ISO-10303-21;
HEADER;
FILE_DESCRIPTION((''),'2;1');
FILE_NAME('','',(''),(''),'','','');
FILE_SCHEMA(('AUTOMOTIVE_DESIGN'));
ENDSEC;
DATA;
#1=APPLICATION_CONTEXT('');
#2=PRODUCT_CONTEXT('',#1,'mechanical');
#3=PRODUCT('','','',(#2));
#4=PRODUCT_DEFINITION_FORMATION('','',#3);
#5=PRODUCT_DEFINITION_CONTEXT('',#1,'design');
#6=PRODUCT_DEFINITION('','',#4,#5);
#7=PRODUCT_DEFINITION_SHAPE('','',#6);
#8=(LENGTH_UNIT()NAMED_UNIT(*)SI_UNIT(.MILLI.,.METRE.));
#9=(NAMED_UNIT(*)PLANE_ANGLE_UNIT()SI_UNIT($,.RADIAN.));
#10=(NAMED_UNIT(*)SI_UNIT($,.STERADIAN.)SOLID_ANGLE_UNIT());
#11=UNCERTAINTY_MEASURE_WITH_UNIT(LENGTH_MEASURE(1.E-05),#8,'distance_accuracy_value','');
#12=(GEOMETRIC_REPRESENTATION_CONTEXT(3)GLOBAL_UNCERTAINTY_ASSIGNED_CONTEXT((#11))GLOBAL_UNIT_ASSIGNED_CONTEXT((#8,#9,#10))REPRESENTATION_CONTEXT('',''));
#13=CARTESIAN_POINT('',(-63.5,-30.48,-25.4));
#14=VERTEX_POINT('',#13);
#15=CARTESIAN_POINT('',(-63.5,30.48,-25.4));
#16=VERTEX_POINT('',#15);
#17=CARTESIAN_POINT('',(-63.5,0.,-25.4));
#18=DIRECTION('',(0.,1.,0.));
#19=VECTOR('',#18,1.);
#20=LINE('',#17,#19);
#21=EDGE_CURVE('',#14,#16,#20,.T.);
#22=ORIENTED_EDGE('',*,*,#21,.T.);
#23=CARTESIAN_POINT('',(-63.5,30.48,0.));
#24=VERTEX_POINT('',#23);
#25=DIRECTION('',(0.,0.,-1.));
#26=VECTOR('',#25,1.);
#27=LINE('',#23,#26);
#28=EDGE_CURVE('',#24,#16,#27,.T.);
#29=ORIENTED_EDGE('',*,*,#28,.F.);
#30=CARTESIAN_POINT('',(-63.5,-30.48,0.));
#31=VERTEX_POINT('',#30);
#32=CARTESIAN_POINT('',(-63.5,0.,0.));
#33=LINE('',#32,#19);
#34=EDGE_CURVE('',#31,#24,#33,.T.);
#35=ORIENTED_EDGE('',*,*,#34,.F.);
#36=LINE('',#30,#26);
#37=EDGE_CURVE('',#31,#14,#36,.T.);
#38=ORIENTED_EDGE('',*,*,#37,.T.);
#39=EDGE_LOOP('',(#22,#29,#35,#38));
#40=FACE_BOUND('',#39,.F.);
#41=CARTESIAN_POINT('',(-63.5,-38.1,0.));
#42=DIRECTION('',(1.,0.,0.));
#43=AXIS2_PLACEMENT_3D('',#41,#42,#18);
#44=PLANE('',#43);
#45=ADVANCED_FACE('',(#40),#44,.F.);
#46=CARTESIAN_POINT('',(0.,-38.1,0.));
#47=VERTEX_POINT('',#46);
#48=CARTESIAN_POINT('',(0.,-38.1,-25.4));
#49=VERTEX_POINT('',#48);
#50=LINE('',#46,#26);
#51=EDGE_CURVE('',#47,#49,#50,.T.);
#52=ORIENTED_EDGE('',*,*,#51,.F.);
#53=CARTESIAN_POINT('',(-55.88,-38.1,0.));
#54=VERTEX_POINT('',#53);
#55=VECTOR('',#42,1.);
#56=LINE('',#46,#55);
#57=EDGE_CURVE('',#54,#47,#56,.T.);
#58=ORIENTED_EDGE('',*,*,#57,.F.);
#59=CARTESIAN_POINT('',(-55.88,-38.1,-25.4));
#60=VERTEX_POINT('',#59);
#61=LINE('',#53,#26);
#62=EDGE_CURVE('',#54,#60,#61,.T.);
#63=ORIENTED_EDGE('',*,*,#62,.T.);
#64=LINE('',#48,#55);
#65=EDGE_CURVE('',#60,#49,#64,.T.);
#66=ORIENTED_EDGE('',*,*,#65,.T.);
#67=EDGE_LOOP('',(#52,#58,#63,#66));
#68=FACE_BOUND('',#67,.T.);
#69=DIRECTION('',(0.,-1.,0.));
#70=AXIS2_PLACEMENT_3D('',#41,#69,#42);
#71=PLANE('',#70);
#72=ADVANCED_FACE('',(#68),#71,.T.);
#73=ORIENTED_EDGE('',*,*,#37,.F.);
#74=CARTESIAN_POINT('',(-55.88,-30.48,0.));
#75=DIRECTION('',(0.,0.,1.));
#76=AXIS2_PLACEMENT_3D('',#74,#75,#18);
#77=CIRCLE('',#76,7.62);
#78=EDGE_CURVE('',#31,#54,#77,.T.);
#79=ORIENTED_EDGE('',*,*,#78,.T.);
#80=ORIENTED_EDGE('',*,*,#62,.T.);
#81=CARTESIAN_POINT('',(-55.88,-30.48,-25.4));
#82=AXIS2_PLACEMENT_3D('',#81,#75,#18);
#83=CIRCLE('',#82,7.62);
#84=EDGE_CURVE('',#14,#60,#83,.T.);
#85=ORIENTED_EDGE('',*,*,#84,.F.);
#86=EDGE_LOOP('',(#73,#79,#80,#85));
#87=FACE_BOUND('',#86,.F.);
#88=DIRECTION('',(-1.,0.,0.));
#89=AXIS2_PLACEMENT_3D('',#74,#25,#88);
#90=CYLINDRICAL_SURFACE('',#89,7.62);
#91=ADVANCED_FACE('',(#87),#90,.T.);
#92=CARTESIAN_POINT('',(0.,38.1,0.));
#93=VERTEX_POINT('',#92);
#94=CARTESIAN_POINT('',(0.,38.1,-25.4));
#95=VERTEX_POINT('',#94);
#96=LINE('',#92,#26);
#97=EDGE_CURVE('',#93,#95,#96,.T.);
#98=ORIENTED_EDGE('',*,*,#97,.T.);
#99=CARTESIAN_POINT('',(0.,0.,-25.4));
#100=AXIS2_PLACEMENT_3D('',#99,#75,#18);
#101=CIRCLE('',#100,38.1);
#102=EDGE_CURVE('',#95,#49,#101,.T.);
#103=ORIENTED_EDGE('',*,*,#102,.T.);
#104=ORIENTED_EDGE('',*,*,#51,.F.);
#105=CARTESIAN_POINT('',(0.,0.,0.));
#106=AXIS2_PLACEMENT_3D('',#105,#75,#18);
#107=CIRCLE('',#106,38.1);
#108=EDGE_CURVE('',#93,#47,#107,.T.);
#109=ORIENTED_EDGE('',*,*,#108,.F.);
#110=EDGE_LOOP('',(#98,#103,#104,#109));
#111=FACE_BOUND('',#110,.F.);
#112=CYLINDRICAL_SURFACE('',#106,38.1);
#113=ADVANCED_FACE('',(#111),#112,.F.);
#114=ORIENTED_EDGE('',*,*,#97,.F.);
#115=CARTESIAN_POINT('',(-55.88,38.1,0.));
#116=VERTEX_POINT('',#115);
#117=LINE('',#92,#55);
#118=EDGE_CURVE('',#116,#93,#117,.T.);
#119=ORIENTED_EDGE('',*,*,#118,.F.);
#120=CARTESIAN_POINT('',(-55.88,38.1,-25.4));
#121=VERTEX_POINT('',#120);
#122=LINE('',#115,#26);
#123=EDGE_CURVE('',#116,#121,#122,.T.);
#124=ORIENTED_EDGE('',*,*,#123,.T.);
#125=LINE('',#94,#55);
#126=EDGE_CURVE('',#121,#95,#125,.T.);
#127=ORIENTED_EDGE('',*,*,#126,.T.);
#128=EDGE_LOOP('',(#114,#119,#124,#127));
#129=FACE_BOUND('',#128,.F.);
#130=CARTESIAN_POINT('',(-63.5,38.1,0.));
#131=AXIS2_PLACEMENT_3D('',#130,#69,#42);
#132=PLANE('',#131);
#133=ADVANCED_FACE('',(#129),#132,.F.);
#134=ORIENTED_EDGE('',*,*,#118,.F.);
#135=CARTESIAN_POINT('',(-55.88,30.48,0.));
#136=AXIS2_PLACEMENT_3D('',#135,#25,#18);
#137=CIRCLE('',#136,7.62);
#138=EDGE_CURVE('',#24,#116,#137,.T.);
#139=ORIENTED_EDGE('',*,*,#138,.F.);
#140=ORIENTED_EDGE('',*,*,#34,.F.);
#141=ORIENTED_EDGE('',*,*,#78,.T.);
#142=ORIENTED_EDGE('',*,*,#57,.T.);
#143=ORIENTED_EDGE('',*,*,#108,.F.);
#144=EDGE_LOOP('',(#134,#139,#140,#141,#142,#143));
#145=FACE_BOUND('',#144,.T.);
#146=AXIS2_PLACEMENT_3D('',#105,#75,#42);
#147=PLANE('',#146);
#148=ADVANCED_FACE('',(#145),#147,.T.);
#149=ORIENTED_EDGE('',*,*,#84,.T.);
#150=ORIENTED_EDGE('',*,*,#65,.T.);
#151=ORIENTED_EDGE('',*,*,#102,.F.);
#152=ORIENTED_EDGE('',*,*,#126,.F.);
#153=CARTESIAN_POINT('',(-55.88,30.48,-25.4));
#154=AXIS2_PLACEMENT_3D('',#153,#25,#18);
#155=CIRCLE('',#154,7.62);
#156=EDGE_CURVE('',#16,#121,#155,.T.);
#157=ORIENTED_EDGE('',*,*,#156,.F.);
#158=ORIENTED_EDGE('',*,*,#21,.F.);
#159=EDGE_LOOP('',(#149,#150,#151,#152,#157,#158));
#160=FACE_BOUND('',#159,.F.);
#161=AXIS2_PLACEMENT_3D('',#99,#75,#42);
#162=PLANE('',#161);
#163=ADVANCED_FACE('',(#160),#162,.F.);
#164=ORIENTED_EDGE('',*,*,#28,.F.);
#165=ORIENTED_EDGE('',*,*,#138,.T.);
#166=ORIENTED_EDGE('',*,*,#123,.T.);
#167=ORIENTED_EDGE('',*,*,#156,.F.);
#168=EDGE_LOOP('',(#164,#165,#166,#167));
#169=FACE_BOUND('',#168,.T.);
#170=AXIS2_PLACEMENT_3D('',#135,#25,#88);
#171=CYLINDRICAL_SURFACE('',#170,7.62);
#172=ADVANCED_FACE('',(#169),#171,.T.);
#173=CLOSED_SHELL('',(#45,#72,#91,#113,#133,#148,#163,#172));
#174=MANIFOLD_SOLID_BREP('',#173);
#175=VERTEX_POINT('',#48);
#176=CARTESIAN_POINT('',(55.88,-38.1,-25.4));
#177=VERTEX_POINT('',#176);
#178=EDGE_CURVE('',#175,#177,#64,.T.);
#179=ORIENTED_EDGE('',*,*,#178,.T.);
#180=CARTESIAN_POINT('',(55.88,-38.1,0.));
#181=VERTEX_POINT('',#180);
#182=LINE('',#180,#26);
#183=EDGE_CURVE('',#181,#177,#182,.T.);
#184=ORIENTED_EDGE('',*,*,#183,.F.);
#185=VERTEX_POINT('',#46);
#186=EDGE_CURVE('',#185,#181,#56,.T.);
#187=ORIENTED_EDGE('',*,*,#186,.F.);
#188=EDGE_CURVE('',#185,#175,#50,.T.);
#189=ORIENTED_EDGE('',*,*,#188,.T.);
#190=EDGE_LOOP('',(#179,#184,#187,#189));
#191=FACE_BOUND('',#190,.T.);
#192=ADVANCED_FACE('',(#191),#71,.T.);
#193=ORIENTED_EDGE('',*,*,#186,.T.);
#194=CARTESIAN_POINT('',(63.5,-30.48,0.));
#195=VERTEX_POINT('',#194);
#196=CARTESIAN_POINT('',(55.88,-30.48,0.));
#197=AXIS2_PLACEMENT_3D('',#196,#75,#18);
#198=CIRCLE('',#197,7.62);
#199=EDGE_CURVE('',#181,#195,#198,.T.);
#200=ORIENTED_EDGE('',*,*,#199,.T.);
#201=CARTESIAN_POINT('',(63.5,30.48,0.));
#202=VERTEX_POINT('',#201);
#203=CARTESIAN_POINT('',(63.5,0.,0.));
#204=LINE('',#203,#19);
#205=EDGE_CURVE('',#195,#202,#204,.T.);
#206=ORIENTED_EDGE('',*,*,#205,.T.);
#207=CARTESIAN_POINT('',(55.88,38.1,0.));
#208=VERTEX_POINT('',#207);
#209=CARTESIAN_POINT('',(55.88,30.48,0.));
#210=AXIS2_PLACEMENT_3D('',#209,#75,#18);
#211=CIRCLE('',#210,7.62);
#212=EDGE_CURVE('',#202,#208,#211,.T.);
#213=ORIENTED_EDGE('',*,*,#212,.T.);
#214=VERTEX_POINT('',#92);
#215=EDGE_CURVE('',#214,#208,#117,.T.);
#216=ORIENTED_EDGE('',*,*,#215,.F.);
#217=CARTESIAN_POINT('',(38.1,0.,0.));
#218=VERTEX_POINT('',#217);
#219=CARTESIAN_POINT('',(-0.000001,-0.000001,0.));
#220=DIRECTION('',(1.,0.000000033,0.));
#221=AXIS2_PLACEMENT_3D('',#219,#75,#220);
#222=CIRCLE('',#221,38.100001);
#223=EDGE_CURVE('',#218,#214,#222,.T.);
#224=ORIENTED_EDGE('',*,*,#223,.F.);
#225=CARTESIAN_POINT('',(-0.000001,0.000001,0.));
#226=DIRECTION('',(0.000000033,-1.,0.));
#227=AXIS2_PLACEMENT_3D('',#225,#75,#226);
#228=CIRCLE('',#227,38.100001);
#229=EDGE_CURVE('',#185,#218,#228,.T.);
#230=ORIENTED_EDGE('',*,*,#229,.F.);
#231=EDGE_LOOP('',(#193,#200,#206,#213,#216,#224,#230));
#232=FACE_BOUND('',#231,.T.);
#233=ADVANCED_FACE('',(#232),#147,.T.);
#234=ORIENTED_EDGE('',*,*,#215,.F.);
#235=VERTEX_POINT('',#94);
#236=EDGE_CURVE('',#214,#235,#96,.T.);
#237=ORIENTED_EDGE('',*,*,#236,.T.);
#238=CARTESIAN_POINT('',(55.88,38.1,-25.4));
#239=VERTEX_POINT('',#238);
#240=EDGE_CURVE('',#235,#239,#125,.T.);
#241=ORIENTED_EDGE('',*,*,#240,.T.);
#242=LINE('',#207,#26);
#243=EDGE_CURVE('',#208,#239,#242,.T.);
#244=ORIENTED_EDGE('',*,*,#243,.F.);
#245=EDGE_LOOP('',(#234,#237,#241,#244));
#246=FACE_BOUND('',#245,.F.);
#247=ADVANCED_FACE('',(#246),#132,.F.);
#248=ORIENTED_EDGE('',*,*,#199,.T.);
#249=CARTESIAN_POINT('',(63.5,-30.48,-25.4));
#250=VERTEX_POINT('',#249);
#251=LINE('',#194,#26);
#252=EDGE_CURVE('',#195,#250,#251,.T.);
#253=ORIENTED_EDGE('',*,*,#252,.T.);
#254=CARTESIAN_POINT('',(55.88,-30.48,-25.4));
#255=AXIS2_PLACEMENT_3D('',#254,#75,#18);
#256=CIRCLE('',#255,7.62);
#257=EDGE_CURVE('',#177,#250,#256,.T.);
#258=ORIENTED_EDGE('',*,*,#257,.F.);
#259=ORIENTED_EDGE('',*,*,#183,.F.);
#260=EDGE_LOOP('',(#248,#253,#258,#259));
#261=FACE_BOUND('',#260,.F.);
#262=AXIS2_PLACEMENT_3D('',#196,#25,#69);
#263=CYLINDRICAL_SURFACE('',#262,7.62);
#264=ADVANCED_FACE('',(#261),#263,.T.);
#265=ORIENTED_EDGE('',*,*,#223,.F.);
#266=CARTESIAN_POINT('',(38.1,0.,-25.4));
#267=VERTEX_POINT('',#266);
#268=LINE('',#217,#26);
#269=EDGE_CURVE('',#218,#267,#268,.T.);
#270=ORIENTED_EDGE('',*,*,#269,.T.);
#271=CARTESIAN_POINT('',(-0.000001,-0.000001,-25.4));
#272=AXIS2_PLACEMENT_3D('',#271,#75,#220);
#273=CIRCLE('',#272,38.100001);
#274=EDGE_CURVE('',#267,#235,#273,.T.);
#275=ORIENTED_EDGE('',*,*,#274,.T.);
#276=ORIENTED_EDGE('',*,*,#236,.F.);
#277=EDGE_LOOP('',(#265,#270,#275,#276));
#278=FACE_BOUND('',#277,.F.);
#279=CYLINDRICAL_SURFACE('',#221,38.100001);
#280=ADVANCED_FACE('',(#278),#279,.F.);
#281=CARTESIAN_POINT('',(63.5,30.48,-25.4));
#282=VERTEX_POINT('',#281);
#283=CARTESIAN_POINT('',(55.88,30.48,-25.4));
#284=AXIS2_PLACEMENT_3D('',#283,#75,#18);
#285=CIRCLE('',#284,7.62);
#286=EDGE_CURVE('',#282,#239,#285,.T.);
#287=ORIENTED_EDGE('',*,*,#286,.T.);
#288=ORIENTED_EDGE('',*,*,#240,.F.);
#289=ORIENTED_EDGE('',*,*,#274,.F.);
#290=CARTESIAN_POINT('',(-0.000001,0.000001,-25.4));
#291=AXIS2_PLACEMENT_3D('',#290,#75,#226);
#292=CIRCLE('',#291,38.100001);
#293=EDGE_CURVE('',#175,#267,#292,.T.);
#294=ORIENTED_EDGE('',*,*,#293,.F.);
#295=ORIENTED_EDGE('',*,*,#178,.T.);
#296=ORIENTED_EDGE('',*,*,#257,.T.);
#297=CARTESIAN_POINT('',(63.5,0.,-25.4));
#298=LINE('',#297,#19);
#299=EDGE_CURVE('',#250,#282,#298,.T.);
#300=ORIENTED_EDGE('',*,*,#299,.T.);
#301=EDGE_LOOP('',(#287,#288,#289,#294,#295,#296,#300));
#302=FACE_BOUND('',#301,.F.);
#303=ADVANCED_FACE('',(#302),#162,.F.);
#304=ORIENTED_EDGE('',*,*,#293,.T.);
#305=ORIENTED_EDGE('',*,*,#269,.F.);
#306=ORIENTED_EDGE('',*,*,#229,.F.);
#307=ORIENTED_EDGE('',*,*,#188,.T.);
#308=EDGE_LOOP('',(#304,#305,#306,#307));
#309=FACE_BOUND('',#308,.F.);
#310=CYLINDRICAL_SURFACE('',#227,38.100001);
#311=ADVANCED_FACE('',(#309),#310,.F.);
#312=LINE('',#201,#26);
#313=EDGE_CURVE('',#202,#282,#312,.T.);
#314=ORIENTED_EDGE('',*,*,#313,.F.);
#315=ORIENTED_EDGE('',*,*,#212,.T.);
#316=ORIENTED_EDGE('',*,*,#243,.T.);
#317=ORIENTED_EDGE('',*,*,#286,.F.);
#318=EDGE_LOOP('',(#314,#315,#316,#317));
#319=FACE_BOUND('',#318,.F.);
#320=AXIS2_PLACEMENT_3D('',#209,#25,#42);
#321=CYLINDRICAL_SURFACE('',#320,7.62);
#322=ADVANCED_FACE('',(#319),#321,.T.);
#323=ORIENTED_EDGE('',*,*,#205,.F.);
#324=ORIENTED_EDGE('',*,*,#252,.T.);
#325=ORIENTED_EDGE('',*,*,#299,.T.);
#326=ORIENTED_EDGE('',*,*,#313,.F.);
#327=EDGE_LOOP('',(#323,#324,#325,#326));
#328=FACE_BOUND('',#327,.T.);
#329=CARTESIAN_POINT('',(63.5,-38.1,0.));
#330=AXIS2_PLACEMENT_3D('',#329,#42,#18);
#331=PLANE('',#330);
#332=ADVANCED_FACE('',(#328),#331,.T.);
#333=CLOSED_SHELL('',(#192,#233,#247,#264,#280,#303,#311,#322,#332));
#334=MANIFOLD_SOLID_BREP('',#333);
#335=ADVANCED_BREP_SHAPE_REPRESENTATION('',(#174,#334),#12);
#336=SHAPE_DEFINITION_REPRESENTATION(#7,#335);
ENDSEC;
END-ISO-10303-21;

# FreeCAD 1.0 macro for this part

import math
import FreeCAD as App
import Part
import Sketcher
from FreeCAD import Vector
Q = App.Units.Quantity


def edges_at(feature, points):
    """Names of the edges that pass closest to the given points."""
    edges = feature.Shape.Edges
    near = lambda p: min(range(len(edges)), key=lambda i: edges[i].distToShape(Part.Vertex(*p))[0])
    return sorted({f"Edge{near(p) + 1}" for p in points})

doc = App.newDocument("Part")
params = doc.addObject("Spreadsheet::Sheet", "Params")
for row, (alias, value) in enumerate([
    ("sketch1_width", "5 in"),
    ("sketch1_height", "3 in"),
    ("pad1_length", "1 in"),
    ("fillet_radius", "0.3 in"),
    ("sketch2_radius", "1.5 in"),
    ("pocket1_length", "3 in"),
], start=1):
    params.set(f"A{row}", alias)
    params.set(f"B{row}", "=" + value)
    params.setAlias(f"B{row}", alias)

body = doc.addObject("PartDesign::Body", "Body")
body.AllowCompound = True

# Sketch on XY plane
sketch1 = body.newObject("Sketcher::SketchObject", "Sketch")
sketch1.AttachmentSupport = (doc.getObject("XY_Plane"), [""])
sketch1.MapMode = "FlatFace"
sketch1.addGeometry([
    Part.LineSegment(Vector(-63.5, 38.1, 0), Vector(-63.5, -38.1, 0)),
    Part.LineSegment(Vector(-63.5, -38.1, 0), Vector(63.5, -38.1, 0)),
    Part.LineSegment(Vector(63.5, -38.1, 0), Vector(63.5, 38.1, 0)),
    Part.LineSegment(Vector(63.5, 38.1, 0), Vector(-63.5, 38.1, 0)),
], False)
sketch1.addConstraint([
    Sketcher.Constraint("Coincident", 0, 2, 1, 1),
    Sketcher.Constraint("Coincident", 1, 2, 2, 1),
    Sketcher.Constraint("Coincident", 2, 2, 3, 1),
    Sketcher.Constraint("Coincident", 3, 2, 0, 1),
    Sketcher.Constraint("Vertical", 0),
    Sketcher.Constraint("Horizontal", 1),
    Sketcher.Constraint("Vertical", 2),
    Sketcher.Constraint("Horizontal", 3),
    Sketcher.Constraint("Symmetric", 0, 2, 2, 2, -1, 1),
    Sketcher.Constraint("DistanceX", 1, 1, 1, 2, Q("5 in")),
    Sketcher.Constraint("DistanceY", 0, 2, 0, 1, Q("3 in")),
])
sketch1.setExpression("Constraints[9]", "Params.sketch1_width")
sketch1.setExpression("Constraints[10]", "Params.sketch1_height")
pad1 = body.newObject("PartDesign::Pad", "Pad")
pad1.Profile = sketch1
pad1.setExpression("Length", "Params.pad1_length")
pad1.Reversed = True
doc.recompute()

fillet = body.newObject("PartDesign::Fillet", "Fillet")
fillet.Base = (pad1, edges_at(pad1, [
    (63.5, -38.1, -12.7),
    (63.5, 38.1, -12.7),
    (-63.5, -38.1, -12.7),
    (-63.5, 38.1, -12.7),
]))
fillet.setExpression("Radius", "Params.fillet_radius")

# Sketch on XY plane
sketch2 = body.newObject("Sketcher::SketchObject", "Sketch001")
sketch2.AttachmentSupport = (doc.getObject("XY_Plane"), [""])
sketch2.MapMode = "FlatFace"
sketch2.addGeometry([
    Part.ArcOfCircle(Part.Circle(Vector(-0.000001, 0.000001, 0), Vector(0, 0, 1), 38.100001), math.radians(-89.999998), math.radians(-0.000002)),
    Part.ArcOfCircle(Part.Circle(Vector(-0.000001, -0.000001, 0), Vector(0, 0, 1), 38.100001), math.radians(0.000002), math.radians(89.999998)),
    Part.ArcOfCircle(Part.Circle(Vector(0, 0, 0), Vector(0, 0, 1), 38.1), math.radians(90), math.radians(270)),
], False)
sketch2.addConstraint([
    Sketcher.Constraint("Tangent", 0, 2, 1, 1),
    Sketcher.Constraint("Tangent", 1, 2, 2, 1),
    Sketcher.Constraint("Tangent", 2, 2, 0, 1),
    Sketcher.Constraint("Coincident", 0, 3, -1, 1),
    Sketcher.Constraint("PointOnObject", 0, 2, -1),
    Sketcher.Constraint("PointOnObject", 1, 2, -2),
    Sketcher.Constraint("PointOnObject", 2, 2, -2),
    Sketcher.Constraint("Radius", 0, Q("1.5 in")),
])
sketch2.setExpression("Constraints[7]", "Params.sketch2_radius")
pocket1 = body.newObject("PartDesign::Pocket", "Pocket")
pocket1.Profile = sketch2
pocket1.setExpression("Length", "Params.pocket1_length")

doc.recompute()
